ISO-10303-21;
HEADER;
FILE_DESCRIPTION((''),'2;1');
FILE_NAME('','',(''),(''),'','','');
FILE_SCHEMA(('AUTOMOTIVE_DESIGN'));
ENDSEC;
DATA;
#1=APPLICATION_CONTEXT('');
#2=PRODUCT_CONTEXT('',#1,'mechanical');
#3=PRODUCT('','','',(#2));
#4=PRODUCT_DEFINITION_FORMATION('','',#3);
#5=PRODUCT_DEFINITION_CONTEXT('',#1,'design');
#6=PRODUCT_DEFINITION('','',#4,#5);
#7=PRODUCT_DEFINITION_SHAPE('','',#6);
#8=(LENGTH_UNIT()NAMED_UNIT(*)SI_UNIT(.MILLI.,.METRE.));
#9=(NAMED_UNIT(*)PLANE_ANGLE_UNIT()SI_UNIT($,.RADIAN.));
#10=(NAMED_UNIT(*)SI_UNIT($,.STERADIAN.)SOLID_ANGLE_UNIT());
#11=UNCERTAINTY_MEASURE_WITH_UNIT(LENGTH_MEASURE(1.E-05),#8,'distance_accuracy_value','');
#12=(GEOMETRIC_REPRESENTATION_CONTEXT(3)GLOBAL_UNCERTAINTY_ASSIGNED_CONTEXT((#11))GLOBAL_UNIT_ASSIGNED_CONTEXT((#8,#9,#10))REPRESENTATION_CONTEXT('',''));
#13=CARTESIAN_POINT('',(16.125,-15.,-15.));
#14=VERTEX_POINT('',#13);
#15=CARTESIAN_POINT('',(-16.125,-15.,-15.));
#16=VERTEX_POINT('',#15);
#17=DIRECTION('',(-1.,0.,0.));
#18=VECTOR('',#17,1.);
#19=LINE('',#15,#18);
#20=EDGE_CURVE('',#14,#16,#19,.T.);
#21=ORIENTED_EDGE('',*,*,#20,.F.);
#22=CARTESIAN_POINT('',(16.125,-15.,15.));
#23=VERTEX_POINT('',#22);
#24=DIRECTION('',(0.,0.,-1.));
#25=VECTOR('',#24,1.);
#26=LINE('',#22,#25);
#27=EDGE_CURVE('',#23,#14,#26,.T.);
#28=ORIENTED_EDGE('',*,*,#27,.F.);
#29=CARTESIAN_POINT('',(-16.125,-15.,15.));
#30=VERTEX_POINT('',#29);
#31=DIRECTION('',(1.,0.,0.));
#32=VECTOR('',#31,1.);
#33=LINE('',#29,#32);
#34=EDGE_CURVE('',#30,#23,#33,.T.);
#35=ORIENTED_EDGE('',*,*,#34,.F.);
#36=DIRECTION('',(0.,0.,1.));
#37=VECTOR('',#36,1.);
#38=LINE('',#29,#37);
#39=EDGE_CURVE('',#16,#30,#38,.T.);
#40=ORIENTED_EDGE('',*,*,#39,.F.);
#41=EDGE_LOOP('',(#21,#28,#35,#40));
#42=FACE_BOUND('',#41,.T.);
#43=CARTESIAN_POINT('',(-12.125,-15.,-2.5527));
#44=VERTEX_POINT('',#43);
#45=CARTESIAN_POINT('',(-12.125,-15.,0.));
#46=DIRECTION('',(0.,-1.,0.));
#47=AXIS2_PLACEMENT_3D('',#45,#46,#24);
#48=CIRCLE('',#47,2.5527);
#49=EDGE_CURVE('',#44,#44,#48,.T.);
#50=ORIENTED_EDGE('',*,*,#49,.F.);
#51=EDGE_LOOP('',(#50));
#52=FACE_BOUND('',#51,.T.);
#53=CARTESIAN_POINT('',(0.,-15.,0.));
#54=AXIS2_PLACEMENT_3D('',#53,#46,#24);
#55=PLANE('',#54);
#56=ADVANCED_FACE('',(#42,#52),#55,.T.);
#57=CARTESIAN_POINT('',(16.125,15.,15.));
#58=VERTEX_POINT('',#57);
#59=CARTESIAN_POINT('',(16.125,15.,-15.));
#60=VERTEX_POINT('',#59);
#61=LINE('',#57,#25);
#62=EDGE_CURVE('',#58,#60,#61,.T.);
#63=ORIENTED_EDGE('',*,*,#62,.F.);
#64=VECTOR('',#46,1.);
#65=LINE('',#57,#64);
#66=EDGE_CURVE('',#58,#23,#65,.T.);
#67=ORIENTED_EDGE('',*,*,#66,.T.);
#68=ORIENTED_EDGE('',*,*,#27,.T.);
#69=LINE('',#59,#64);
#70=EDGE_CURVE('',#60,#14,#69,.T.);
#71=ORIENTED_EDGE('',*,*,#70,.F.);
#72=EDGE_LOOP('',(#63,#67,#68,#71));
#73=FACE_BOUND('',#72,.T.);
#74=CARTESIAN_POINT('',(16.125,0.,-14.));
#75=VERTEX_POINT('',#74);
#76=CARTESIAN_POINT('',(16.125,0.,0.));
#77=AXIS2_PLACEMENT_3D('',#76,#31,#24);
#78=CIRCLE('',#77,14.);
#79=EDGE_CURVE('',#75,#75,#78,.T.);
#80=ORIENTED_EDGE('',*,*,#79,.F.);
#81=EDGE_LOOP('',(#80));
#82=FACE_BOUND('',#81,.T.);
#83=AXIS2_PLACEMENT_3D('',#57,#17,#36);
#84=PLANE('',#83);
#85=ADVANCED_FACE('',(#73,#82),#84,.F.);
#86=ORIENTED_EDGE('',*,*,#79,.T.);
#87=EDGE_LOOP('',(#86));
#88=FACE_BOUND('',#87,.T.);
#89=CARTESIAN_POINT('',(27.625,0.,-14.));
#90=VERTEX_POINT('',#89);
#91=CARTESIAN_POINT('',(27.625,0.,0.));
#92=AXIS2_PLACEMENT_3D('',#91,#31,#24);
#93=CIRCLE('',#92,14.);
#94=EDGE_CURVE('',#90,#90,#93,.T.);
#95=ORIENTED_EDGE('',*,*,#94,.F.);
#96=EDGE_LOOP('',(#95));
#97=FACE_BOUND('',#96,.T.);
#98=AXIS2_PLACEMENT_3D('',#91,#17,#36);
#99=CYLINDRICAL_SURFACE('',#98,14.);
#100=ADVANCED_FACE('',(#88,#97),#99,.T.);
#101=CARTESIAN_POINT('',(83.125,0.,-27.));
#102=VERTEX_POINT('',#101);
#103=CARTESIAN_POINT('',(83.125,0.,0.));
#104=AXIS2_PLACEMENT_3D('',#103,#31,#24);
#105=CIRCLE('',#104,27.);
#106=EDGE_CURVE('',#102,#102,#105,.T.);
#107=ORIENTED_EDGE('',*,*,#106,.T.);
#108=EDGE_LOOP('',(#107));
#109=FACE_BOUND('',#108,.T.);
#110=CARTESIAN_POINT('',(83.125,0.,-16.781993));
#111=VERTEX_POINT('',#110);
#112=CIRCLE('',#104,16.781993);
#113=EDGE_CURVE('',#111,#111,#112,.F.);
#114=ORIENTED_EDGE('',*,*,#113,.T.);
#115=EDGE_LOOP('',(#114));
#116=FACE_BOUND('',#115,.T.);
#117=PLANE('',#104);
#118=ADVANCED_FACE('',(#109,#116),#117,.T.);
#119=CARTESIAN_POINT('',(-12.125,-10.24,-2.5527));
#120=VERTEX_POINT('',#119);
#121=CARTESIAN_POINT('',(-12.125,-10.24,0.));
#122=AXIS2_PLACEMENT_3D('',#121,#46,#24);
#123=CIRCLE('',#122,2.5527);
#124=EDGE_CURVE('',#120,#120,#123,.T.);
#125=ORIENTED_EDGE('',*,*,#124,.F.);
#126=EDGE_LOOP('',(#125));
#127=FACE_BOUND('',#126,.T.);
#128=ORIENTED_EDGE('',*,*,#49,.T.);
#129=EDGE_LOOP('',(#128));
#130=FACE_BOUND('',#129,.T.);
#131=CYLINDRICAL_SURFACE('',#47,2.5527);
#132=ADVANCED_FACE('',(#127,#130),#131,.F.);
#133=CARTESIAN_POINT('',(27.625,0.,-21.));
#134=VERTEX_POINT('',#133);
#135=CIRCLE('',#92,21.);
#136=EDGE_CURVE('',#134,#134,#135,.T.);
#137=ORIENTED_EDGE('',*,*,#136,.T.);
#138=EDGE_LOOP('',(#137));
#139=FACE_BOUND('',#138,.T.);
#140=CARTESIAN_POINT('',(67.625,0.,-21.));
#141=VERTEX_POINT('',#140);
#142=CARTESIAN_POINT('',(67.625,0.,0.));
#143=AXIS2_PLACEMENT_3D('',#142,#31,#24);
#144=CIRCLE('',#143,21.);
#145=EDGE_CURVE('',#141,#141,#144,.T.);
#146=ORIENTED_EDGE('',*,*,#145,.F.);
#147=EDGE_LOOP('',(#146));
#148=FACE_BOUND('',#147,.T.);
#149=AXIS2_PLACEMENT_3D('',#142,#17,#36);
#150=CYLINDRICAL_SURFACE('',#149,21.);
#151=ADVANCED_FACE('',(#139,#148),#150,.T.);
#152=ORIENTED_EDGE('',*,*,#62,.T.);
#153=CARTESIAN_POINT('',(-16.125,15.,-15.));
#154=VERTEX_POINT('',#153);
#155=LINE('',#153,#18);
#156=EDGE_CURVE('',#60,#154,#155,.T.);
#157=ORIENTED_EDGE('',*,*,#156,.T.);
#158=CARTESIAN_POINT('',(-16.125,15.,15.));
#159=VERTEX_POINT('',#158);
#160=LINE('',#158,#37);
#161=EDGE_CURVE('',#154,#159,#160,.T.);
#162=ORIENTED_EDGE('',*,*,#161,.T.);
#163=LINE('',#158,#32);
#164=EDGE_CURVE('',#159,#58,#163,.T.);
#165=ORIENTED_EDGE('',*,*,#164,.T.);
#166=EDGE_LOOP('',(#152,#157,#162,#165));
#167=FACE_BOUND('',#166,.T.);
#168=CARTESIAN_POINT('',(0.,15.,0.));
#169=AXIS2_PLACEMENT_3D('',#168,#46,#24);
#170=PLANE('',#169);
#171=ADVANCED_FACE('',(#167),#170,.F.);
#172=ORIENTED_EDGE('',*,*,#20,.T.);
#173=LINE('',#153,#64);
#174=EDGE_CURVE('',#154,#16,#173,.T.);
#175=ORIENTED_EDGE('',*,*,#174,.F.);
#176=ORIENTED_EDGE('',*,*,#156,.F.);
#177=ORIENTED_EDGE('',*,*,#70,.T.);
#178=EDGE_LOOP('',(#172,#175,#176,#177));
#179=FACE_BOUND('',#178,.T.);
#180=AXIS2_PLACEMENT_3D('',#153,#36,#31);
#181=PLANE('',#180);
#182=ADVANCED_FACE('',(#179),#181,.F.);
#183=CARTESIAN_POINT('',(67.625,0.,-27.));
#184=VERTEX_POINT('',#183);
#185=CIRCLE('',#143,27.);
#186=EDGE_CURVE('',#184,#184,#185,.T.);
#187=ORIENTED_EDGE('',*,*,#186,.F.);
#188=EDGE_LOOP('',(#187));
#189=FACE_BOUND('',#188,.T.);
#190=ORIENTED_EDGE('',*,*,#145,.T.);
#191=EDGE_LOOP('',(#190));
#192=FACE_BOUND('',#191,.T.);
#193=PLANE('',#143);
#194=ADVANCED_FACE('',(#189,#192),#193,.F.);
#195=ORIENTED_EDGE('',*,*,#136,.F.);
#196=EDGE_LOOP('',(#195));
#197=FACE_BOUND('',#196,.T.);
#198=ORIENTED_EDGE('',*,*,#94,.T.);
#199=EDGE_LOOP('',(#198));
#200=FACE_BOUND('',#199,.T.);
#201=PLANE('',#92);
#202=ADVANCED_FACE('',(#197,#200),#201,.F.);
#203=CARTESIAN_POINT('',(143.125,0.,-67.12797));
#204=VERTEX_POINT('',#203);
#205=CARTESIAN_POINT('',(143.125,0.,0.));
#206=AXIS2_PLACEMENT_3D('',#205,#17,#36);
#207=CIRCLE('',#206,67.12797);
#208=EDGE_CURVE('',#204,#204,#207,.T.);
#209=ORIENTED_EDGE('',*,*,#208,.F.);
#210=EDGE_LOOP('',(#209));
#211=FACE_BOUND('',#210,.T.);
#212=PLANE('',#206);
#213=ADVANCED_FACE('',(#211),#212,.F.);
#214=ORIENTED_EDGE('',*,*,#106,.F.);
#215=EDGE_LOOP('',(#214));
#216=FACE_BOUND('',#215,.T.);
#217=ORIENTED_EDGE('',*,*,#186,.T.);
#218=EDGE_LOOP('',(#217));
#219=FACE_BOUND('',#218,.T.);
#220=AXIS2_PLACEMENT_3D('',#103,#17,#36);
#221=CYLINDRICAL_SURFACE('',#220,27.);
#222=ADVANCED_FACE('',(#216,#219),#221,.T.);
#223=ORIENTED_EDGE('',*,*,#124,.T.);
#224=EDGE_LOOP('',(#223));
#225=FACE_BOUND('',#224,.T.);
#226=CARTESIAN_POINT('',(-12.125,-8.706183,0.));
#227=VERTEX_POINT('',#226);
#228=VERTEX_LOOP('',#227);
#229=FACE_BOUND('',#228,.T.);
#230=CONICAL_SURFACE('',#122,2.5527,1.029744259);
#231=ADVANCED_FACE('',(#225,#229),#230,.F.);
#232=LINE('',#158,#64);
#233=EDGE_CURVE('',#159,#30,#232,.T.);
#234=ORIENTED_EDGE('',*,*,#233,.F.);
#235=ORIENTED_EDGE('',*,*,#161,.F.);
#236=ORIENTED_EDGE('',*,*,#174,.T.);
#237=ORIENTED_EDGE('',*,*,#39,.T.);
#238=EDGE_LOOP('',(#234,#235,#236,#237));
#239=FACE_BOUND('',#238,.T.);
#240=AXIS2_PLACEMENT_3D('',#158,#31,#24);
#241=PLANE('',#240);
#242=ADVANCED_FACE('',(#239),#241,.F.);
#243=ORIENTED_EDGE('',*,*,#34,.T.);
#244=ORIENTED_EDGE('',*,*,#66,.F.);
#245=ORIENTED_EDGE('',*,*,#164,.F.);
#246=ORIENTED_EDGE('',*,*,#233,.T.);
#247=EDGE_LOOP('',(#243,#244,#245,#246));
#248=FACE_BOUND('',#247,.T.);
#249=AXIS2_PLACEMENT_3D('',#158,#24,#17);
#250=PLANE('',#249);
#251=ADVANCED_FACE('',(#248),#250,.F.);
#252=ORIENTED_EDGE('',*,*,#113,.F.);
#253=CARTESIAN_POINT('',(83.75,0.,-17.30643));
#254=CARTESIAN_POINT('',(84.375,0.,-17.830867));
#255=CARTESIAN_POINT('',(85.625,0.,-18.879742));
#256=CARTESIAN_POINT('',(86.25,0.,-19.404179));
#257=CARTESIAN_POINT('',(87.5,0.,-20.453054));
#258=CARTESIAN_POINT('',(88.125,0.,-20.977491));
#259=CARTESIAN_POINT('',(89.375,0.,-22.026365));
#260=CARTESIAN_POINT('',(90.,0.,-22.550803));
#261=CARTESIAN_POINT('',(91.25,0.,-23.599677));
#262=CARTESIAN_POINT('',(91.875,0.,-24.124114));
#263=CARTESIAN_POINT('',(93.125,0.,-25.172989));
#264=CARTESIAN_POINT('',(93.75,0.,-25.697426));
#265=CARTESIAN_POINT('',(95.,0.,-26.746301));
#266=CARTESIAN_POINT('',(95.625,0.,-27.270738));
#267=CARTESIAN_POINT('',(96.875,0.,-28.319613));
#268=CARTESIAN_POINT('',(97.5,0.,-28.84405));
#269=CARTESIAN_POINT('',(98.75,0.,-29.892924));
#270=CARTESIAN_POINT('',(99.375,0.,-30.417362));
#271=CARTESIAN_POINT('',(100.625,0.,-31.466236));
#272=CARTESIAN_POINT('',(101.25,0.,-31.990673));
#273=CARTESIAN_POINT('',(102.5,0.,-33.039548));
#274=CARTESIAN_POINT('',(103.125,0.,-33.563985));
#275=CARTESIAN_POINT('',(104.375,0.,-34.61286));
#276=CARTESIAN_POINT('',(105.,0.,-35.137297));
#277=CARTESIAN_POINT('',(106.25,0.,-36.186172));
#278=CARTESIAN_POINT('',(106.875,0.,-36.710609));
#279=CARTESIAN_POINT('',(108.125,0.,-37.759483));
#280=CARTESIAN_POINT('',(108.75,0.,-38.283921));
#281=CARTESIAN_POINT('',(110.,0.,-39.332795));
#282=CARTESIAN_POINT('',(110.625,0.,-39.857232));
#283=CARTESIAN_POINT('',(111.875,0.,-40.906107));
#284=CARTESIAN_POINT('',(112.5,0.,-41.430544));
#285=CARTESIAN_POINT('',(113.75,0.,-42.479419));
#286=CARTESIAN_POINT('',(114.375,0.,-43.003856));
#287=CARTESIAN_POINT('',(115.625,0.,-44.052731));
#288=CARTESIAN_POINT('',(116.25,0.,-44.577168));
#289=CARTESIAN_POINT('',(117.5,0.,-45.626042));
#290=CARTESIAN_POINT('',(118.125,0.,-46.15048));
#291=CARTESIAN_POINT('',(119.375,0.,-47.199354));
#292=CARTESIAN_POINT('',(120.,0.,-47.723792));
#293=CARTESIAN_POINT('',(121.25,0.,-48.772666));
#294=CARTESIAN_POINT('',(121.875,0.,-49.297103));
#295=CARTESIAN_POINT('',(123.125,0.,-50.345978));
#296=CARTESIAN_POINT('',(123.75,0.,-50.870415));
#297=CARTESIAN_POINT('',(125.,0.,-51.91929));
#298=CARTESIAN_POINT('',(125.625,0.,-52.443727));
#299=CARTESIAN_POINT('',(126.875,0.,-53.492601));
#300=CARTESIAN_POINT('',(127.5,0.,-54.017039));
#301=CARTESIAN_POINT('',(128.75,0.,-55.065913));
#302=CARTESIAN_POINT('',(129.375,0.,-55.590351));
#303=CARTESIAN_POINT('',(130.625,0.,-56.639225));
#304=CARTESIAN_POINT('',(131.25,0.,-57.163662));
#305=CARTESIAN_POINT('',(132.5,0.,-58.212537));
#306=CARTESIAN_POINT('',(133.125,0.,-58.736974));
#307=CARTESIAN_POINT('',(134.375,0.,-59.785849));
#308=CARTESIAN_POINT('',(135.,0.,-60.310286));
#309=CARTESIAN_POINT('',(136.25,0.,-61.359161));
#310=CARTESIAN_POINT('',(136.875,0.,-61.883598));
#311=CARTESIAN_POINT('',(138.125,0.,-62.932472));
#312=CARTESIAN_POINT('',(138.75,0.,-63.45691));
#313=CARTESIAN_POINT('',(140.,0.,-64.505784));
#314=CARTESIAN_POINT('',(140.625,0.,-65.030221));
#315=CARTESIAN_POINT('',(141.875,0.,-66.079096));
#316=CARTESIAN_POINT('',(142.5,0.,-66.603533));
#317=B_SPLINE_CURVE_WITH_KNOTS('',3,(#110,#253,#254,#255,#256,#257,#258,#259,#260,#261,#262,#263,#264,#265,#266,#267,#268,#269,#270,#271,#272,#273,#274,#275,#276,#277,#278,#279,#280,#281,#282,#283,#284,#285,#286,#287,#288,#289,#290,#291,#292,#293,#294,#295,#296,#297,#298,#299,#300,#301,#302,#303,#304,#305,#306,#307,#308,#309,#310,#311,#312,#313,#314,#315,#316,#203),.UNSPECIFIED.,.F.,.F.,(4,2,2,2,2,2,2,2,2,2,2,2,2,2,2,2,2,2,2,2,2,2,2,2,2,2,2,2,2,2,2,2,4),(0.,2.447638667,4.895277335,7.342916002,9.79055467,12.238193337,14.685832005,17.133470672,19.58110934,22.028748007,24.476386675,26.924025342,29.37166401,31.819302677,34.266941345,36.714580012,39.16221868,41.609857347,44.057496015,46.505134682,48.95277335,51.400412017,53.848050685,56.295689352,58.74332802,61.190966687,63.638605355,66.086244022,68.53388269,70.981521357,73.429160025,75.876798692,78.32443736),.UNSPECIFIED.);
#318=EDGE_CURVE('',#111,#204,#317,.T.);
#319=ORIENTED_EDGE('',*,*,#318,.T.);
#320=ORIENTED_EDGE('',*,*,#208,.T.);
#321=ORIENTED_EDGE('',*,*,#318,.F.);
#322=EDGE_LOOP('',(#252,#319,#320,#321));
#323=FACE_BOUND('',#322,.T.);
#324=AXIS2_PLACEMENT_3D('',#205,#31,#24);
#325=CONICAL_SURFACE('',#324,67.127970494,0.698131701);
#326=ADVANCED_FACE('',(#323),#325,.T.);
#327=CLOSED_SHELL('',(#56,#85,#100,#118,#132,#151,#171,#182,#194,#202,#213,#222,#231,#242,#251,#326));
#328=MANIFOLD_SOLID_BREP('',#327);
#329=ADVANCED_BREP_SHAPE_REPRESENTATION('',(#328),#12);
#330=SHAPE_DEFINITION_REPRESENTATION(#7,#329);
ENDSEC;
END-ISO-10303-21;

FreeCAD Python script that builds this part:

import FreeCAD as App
import Part
import Sketcher
Q = App.Units.Quantity


def add_polygon(sketch, points):
    """Adds a closed chain of lines whose ends are joined by coincident constraints."""
    first, n = sketch.GeometryCount, len(points)
    for a, b in zip(points, points[1:] + points[:1]):
        sketch.addGeometry(Part.LineSegment(App.Vector(*a, 0), App.Vector(*b, 0)), False)
    for i in range(n):
        sketch.addConstraint(Sketcher.Constraint("Coincident", first + i, 2, first + (i + 1) % n, 1))

doc = App.newDocument("Part")
body = doc.addObject("PartDesign::Body", "Body")

# Sketch on XZ plane
sketch1 = body.newObject("Sketcher::SketchObject", "Sketch")
sketch1.AttachmentSupport = (doc.getObject("XZ_Plane"), [""])
sketch1.MapMode = "FlatFace"
add_polygon(sketch1, [(-16.125, -15), (-16.125, 15), (16.125, 15), (16.125, -15)])  # lines 0-3
sketch1.addConstraint(Sketcher.Constraint("Vertical", 0))
sketch1.addConstraint(Sketcher.Constraint("Horizontal", 1))
sketch1.addConstraint(Sketcher.Constraint("Vertical", 2))
sketch1.addConstraint(Sketcher.Constraint("Horizontal", 3))
sketch1.addConstraint(Sketcher.Constraint("Symmetric", 0, 2, 2, 2, -1, 1))
sketch1.addConstraint(Sketcher.Constraint("DistanceY", 0, 1, 0, 2, 30.0))
sketch1.addConstraint(Sketcher.Constraint("DistanceX", 1, 1, 1, 2, 32.25))
pad1 = body.newObject("PartDesign::Pad", "Pad")
pad1.Profile = sketch1
pad1.Length = 30
pad1.Midplane = True

# Sketch on YZ plane
sketch2 = body.newObject("Sketcher::SketchObject", "Sketch001")
sketch2.AttachmentSupport = (doc.getObject("YZ_Plane"), [""])
sketch2.MapMode = "FlatFace"
sketch2.AttachmentOffset = App.Placement(App.Vector(0, 0, 16.125), App.Rotation())
sketch2.addGeometry(Part.Circle(App.Vector(0, 0, 0), App.Vector(0, 0, 1), 14), False)
sketch2.addConstraint(Sketcher.Constraint("Coincident", 0, 3, -1, 1))
sketch2.addConstraint(Sketcher.Constraint("Diameter", 0, 28.0))
pad2 = body.newObject("PartDesign::Pad", "Pad001")
pad2.Profile = sketch2
pad2.Length = 11.5

# Sketch on YZ plane
sketch3 = body.newObject("Sketcher::SketchObject", "Sketch002")
sketch3.AttachmentSupport = (doc.getObject("YZ_Plane"), [""])
sketch3.MapMode = "FlatFace"
sketch3.AttachmentOffset = App.Placement(App.Vector(0, 0, 27.625), App.Rotation())
sketch3.addGeometry(Part.Circle(App.Vector(0, 0, 0), App.Vector(0, 0, 1), 21), False)
sketch3.addConstraint(Sketcher.Constraint("Coincident", 0, 3, -1, 1))
sketch3.addConstraint(Sketcher.Constraint("Diameter", 0, 42.0))
pad3 = body.newObject("PartDesign::Pad", "Pad002")
pad3.Profile = sketch3
pad3.Length = 40

# Sketch on YZ plane
sketch4 = body.newObject("Sketcher::SketchObject", "Sketch003")
sketch4.AttachmentSupport = (doc.getObject("YZ_Plane"), [""])
sketch4.MapMode = "FlatFace"
sketch4.AttachmentOffset = App.Placement(App.Vector(0, 0, 67.625), App.Rotation())
sketch4.addGeometry(Part.Circle(App.Vector(0, 0, 0), App.Vector(0, 0, 1), 27), False)
sketch4.addConstraint(Sketcher.Constraint("Coincident", 0, 3, -1, 1))
sketch4.addConstraint(Sketcher.Constraint("Diameter", 0, 54.0))
pad4 = body.newObject("PartDesign::Pad", "Pad003")
pad4.Profile = sketch4
pad4.Length = 15.5

# Sketch on XY plane
sketch5 = body.newObject("Sketcher::SketchObject", "Sketch004")
sketch5.AttachmentSupport = (doc.getObject("XY_Plane"), [""])
sketch5.MapMode = "FlatFace"
add_polygon(sketch5, [(143.125, 67.12797), (63.125, 0), (143.125, 0)])  # lines 0-2
sketch5.addConstraint(Sketcher.Constraint("Horizontal", 1))
sketch5.addConstraint(Sketcher.Constraint("Vertical", 2))
sketch5.addConstraint(Sketcher.Constraint("PointOnObject", 0, 2, -1))
sketch5.addConstraint(Sketcher.Constraint("DistanceX", 1, 1, 1, 2, 80.0))
sketch5.addConstraint(Sketcher.Constraint("Angle", 0, Q("-140 deg")))
sketch5.addConstraint(Sketcher.Constraint("DistanceX", -1, 1, 0, 2, 63.125))
revolution = body.newObject("PartDesign::Revolution", "Revolution")
revolution.Profile = sketch5
revolution.ReferenceAxis = (sketch5, ["H_Axis"])
revolution.Angle = 360

# Sketch on XZ plane
sketch6 = body.newObject("Sketcher::SketchObject", "Sketch005")
sketch6.AttachmentSupport = (doc.getObject("XZ_Plane"), [""])
sketch6.MapMode = "FlatFace"
sketch6.AttachmentOffset = App.Placement(App.Vector(0, 0, 15), App.Rotation())
sketch6.addGeometry(Part.Circle(App.Vector(-12.125, 0, 0), App.Vector(0, 0, 1), 2.5527), False)
sketch6.addConstraint(Sketcher.Constraint("PointOnObject", 0, 3, -1))
sketch6.addConstraint(Sketcher.Constraint("Diameter", 0, 5.1054))
sketch6.addConstraint(Sketcher.Constraint("DistanceX", 0, 3, -1, 1, 12.125))
doc.recompute()
hole = body.newObject("PartDesign::Hole", "Hole")
hole.Profile = sketch6
hole.ThreadType = "None"
hole.Diameter = 5.1054
hole.DepthType = "Dimension"
hole.Depth = 4.76
hole.DrillPoint = "Angled"
hole.DrillPointAngle = 118

doc.recompute()
